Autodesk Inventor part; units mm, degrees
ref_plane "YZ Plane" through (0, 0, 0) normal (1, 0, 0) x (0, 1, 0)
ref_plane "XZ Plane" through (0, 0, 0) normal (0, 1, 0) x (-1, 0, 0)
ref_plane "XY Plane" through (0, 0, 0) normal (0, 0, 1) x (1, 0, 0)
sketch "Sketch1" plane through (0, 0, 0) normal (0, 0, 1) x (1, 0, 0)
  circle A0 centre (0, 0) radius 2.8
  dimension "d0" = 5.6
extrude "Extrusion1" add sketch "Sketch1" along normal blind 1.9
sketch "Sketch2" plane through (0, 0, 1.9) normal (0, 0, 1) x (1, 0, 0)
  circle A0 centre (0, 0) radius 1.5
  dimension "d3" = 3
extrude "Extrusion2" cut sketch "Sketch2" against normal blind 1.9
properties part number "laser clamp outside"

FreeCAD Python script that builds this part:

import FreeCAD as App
import Part
import Sketcher

doc = App.newDocument("Part")
body = doc.addObject("PartDesign::Body", "Body")

sketch1 = body.newObject("Sketcher::SketchObject", "Sketch")
sketch1.AttachmentSupport = (doc.getObject("XY_Plane"), [""])
sketch1.MapMode = "FlatFace"
sketch1.addGeometry(Part.Circle(App.Vector(0, 0, 0), App.Vector(0, 0, 1), 2.8), False)
sketch1.addConstraint(Sketcher.Constraint("Coincident", 0, 3, -1, 1))
sketch1.addConstraint(Sketcher.Constraint("Diameter", 0, 5.6))
pad1 = body.newObject("PartDesign::Pad", "Pad")
pad1.Profile = sketch1
pad1.Length = 1.9

sketch2 = body.newObject("Sketcher::SketchObject", "Sketch001")
sketch2.AttachmentSupport = (doc.getObject("XY_Plane"), [""])
sketch2.MapMode = "FlatFace"
sketch2.AttachmentOffset = App.Placement(App.Vector(0, 0, 1.9), App.Rotation())
sketch2.addGeometry(Part.Circle(App.Vector(0, 0, 0), App.Vector(0, 0, 1), 1.5), False)
sketch2.addConstraint(Sketcher.Constraint("Coincident", 0, 3, -1, 1))
sketch2.addConstraint(Sketcher.Constraint("Diameter", 0, 3.0))
pocket1 = body.newObject("PartDesign::Pocket", "Pocket")
pocket1.Profile = sketch2
pocket1.Length = 1.9

doc.recompute()
